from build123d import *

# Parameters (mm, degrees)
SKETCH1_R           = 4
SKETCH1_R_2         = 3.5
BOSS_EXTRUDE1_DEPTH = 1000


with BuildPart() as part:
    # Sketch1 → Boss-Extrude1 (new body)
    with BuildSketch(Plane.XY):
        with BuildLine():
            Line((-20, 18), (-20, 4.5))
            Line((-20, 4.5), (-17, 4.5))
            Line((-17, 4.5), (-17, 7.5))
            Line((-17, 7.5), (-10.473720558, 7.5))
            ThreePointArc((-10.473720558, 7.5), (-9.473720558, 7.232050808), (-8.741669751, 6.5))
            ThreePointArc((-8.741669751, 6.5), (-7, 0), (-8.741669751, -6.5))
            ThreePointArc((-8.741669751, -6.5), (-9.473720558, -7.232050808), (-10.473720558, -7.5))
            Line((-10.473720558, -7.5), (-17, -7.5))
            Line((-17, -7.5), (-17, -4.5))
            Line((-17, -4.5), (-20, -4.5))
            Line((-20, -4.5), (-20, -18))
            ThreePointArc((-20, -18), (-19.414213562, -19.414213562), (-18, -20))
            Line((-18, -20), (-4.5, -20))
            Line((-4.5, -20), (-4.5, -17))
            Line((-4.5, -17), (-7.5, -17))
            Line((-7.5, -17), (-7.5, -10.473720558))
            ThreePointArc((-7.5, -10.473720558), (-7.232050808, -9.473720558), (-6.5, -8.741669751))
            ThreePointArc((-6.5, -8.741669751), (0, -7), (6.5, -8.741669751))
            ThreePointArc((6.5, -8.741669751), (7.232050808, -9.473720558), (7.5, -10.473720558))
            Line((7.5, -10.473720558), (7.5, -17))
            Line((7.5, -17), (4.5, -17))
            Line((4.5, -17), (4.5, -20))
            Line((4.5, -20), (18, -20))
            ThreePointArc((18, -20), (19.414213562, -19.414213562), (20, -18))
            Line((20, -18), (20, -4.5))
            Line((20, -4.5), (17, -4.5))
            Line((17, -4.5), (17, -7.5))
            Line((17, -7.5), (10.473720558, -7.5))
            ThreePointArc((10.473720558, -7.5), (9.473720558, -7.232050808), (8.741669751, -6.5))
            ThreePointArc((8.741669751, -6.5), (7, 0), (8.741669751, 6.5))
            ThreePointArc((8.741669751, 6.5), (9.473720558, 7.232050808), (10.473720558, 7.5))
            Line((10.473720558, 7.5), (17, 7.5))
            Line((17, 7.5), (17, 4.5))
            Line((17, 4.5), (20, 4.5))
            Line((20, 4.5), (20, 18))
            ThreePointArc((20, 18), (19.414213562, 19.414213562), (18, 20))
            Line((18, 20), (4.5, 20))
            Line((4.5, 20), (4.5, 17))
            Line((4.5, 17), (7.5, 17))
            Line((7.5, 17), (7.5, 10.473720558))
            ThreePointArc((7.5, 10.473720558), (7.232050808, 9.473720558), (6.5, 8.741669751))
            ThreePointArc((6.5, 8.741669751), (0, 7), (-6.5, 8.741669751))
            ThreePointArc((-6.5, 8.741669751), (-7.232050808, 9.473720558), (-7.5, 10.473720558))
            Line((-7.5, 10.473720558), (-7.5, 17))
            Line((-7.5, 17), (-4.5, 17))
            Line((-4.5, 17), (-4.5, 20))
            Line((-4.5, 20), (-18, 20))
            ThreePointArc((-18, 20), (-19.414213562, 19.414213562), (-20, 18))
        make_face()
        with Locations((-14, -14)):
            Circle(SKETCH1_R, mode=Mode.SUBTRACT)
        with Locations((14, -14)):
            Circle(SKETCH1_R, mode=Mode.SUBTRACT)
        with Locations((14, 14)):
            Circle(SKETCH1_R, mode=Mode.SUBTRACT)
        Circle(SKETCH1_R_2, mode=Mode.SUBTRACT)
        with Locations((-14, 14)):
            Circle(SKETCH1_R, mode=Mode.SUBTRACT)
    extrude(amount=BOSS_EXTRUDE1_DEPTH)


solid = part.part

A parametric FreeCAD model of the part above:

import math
import FreeCAD as App
import Part
import Sketcher

V = App.Vector

doc = App.newDocument("Part")
body = doc.addObject("PartDesign::Body", "Body")

# Sketch on XY plane
sketch1 = body.newObject("Sketcher::SketchObject", "Sketch")
sketch1.AttachmentSupport = (doc.getObject("XY_Plane"), [""])
sketch1.MapMode = "FlatFace"
sketch1.addGeometry([
    Part.LineSegment(V(-20, 18, 0), V(-20, 4.5, 0)),  # 0
    Part.LineSegment(V(-20, 4.5, 0), V(-17, 4.5, 0)),  # 1
    Part.LineSegment(V(-17, 4.5, 0), V(-17, 7.5, 0)),  # 2
    Part.LineSegment(V(-17, 7.5, 0), V(-10.473721, 7.5, 0)),  # 3
    Part.ArcOfCircle(Part.Circle(V(-10.473721, 5.5, 0), V(0, 0, 1), 2), math.radians(30), math.radians(90)),  # 4
    Part.ArcOfCircle(Part.Circle(V(-20, 0, 0), V(0, 0, 1), 13), math.radians(-30), math.radians(30)),  # 5
    Part.ArcOfCircle(Part.Circle(V(-10.473721, -5.5, 0), V(0, 0, 1), 2), math.radians(-90), math.radians(-30)),  # 6
    Part.LineSegment(V(-10.473721, -7.5, 0), V(-17, -7.5, 0)),  # 7
    Part.LineSegment(V(-17, -7.5, 0), V(-17, -4.5, 0)),  # 8
    Part.LineSegment(V(-17, -4.5, 0), V(-20, -4.5, 0)),  # 9
    Part.LineSegment(V(-20, -4.5, 0), V(-20, -18, 0)),  # 10
    Part.ArcOfCircle(Part.Circle(V(-18, -18, 0), V(0, 0, 1), 2), math.radians(-180), math.radians(-90)),  # 11
    Part.LineSegment(V(-18, -20, 0), V(-4.5, -20, 0)),  # 12
    Part.LineSegment(V(-4.5, -20, 0), V(-4.5, -17, 0)),  # 13
    Part.LineSegment(V(-4.5, -17, 0), V(-7.5, -17, 0)),  # 14
    Part.LineSegment(V(-7.5, -17, 0), V(-7.5, -10.473721, 0)),  # 15
    Part.ArcOfCircle(Part.Circle(V(-5.5, -10.473721, 0), V(0, 0, 1), 2), math.radians(120), math.radians(180)),  # 16
    Part.ArcOfCircle(Part.Circle(V(0, -20, 0), V(0, 0, 1), 13), math.radians(60), math.radians(120)),  # 17
    Part.ArcOfCircle(Part.Circle(V(5.5, -10.473721, 0), V(0, 0, 1), 2), math.radians(0), math.radians(60)),  # 18
    Part.LineSegment(V(7.5, -10.473721, 0), V(7.5, -17, 0)),  # 19
    Part.LineSegment(V(7.5, -17, 0), V(4.5, -17, 0)),  # 20
    Part.LineSegment(V(4.5, -17, 0), V(4.5, -20, 0)),  # 21
    Part.LineSegment(V(4.5, -20, 0), V(18, -20, 0)),  # 22
    Part.ArcOfCircle(Part.Circle(V(18, -18, 0), V(0, 0, 1), 2), math.radians(-90), math.radians(0)),  # 23
    Part.LineSegment(V(20, -18, 0), V(20, -4.5, 0)),  # 24
    Part.LineSegment(V(20, -4.5, 0), V(17, -4.5, 0)),  # 25
    Part.LineSegment(V(17, -4.5, 0), V(17, -7.5, 0)),  # 26
    Part.LineSegment(V(17, -7.5, 0), V(10.473721, -7.5, 0)),  # 27
    Part.ArcOfCircle(Part.Circle(V(10.473721, -5.5, 0), V(0, 0, 1), 2), math.radians(-150), math.radians(-90)),  # 28
    Part.ArcOfCircle(Part.Circle(V(20, 0, 0), V(0, 0, 1), 13), math.radians(150), math.radians(210)),  # 29
    Part.ArcOfCircle(Part.Circle(V(10.473721, 5.5, 0), V(0, 0, 1), 2), math.radians(90), math.radians(150)),  # 30
    Part.LineSegment(V(10.473721, 7.5, 0), V(17, 7.5, 0)),  # 31
    Part.LineSegment(V(17, 7.5, 0), V(17, 4.5, 0)),  # 32
    Part.LineSegment(V(17, 4.5, 0), V(20, 4.5, 0)),  # 33
    Part.LineSegment(V(20, 4.5, 0), V(20, 18, 0)),  # 34
    Part.ArcOfCircle(Part.Circle(V(18, 18, 0), V(0, 0, 1), 2), math.radians(0), math.radians(90)),  # 35
    Part.LineSegment(V(18, 20, 0), V(4.5, 20, 0)),  # 36
    Part.LineSegment(V(4.5, 20, 0), V(4.5, 17, 0)),  # 37
    Part.LineSegment(V(4.5, 17, 0), V(7.5, 17, 0)),  # 38
    Part.LineSegment(V(7.5, 17, 0), V(7.5, 10.473721, 0)),  # 39
    Part.ArcOfCircle(Part.Circle(V(5.5, 10.473721, 0), V(0, 0, 1), 2), math.radians(-60), math.radians(0)),  # 40
    Part.ArcOfCircle(Part.Circle(V(0, 20, 0), V(0, 0, 1), 13), math.radians(-120), math.radians(-60)),  # 41
    Part.ArcOfCircle(Part.Circle(V(-5.5, 10.473721, 0), V(0, 0, 1), 2), math.radians(180), math.radians(240)),  # 42
    Part.LineSegment(V(-7.5, 10.473721, 0), V(-7.5, 17, 0)),  # 43
    Part.LineSegment(V(-7.5, 17, 0), V(-4.5, 17, 0)),  # 44
    Part.LineSegment(V(-4.5, 17, 0), V(-4.5, 20, 0)),  # 45
    Part.LineSegment(V(-4.5, 20, 0), V(-18, 20, 0)),  # 46
    Part.ArcOfCircle(Part.Circle(V(-18, 18, 0), V(0, 0, 1), 2), math.radians(90), math.radians(180)),  # 47
    Part.Circle(V(-14, -14, 0), V(0, 0, 1), 4),  # 48
    Part.Circle(V(14, -14, 0), V(0, 0, 1), 4),  # 49
    Part.Circle(V(-14, 14, 0), V(0, 0, 1), 4),  # 50
    Part.Circle(V(0, 0, 0), V(0, 0, 1), 3.5),  # 51
    Part.Circle(V(14, 14, 0), V(0, 0, 1), 4),  # 52
], False)
sketch1.addConstraint([
    Sketcher.Constraint("Coincident", 0, 2, 1, 1),
    Sketcher.Constraint("Coincident", 1, 2, 2, 1),
    Sketcher.Constraint("Coincident", 2, 2, 3, 1),
    Sketcher.Constraint("Tangent", 3, 2, 4, 2),
    Sketcher.Constraint("Tangent", 4, 1, 5, 2),
    Sketcher.Constraint("Tangent", 5, 1, 6, 2),
    Sketcher.Constraint("Tangent", 6, 1, 7, 1),
    Sketcher.Constraint("Coincident", 7, 2, 8, 1),
    Sketcher.Constraint("Coincident", 8, 2, 9, 1),
    Sketcher.Constraint("Coincident", 9, 2, 10, 1),
    Sketcher.Constraint("Tangent", 10, 2, 11, 1),
    Sketcher.Constraint("Tangent", 11, 2, 12, 1),
    Sketcher.Constraint("Coincident", 12, 2, 13, 1),
    Sketcher.Constraint("Coincident", 13, 2, 14, 1),
    Sketcher.Constraint("Coincident", 14, 2, 15, 1),
    Sketcher.Constraint("Tangent", 15, 2, 16, 2),
    Sketcher.Constraint("Tangent", 16, 1, 17, 2),
    Sketcher.Constraint("Tangent", 17, 1, 18, 2),
    Sketcher.Constraint("Tangent", 18, 1, 19, 1),
    Sketcher.Constraint("Coincident", 19, 2, 20, 1),
    Sketcher.Constraint("Coincident", 20, 2, 21, 1),
    Sketcher.Constraint("Coincident", 21, 2, 22, 1),
    Sketcher.Constraint("Tangent", 22, 2, 23, 1),
    Sketcher.Constraint("Tangent", 23, 2, 24, 1),
    Sketcher.Constraint("Coincident", 24, 2, 25, 1),
    Sketcher.Constraint("Coincident", 25, 2, 26, 1),
    Sketcher.Constraint("Coincident", 26, 2, 27, 1),
    Sketcher.Constraint("Tangent", 27, 2, 28, 2),
    Sketcher.Constraint("Tangent", 28, 1, 29, 2),
    Sketcher.Constraint("Tangent", 29, 1, 30, 2),
    Sketcher.Constraint("Tangent", 30, 1, 31, 1),
    Sketcher.Constraint("Coincident", 31, 2, 32, 1),
    Sketcher.Constraint("Coincident", 32, 2, 33, 1),
    Sketcher.Constraint("Coincident", 33, 2, 34, 1),
    Sketcher.Constraint("Tangent", 34, 2, 35, 1),
    Sketcher.Constraint("Tangent", 35, 2, 36, 1),
    Sketcher.Constraint("Coincident", 36, 2, 37, 1),
    Sketcher.Constraint("Coincident", 37, 2, 38, 1),
    Sketcher.Constraint("Coincident", 38, 2, 39, 1),
    Sketcher.Constraint("Tangent", 39, 2, 40, 2),
    Sketcher.Constraint("Tangent", 40, 1, 41, 2),
    Sketcher.Constraint("Tangent", 41, 1, 42, 2),
    Sketcher.Constraint("Tangent", 42, 1, 43, 1),
    Sketcher.Constraint("Coincident", 43, 2, 44, 1),
    Sketcher.Constraint("Coincident", 44, 2, 45, 1),
    Sketcher.Constraint("Coincident", 45, 2, 46, 1),
    Sketcher.Constraint("Tangent", 46, 2, 47, 1),
    Sketcher.Constraint("Tangent", 47, 2, 0, 1),
    Sketcher.Constraint("Vertical", 0),
    Sketcher.Constraint("Horizontal", 1),
    Sketcher.Constraint("Vertical", 2),
    Sketcher.Constraint("Horizontal", 3),
    Sketcher.Constraint("Horizontal", 7),
    Sketcher.Constraint("Vertical", 8),
    Sketcher.Constraint("Horizontal", 9),
    Sketcher.Constraint("Vertical", 10),
    Sketcher.Constraint("Horizontal", 12),
    Sketcher.Constraint("Vertical", 13),
    Sketcher.Constraint("Horizontal", 14),
    Sketcher.Constraint("Vertical", 15),
    Sketcher.Constraint("Vertical", 19),
    Sketcher.Constraint("Horizontal", 20),
    Sketcher.Constraint("Vertical", 21),
    Sketcher.Constraint("Horizontal", 22),
    Sketcher.Constraint("Vertical", 24),
    Sketcher.Constraint("Horizontal", 25),
    Sketcher.Constraint("Vertical", 26),
    Sketcher.Constraint("Horizontal", 27),
    Sketcher.Constraint("Horizontal", 31),
    Sketcher.Constraint("Vertical", 32),
    Sketcher.Constraint("Horizontal", 33),
    Sketcher.Constraint("Vertical", 34),
    Sketcher.Constraint("Horizontal", 36),
    Sketcher.Constraint("Vertical", 37),
    Sketcher.Constraint("Horizontal", 38),
    Sketcher.Constraint("Vertical", 39),
    Sketcher.Constraint("Vertical", 43),
    Sketcher.Constraint("Horizontal", 44),
    Sketcher.Constraint("Vertical", 45),
    Sketcher.Constraint("Horizontal", 46),
    Sketcher.Constraint("Coincident", 51, 3, -1, 1),
    Sketcher.Constraint("Equal", 4, 6),
    Sketcher.Constraint("Equal", 6, 11),
    Sketcher.Constraint("Equal", 11, 16),
    Sketcher.Constraint("Equal", 5, 17),
    Sketcher.Constraint("Equal", 16, 18),
    Sketcher.Constraint("Equal", 18, 23),
    Sketcher.Constraint("Equal", 23, 28),
    Sketcher.Constraint("Equal", 17, 29),
    Sketcher.Constraint("Equal", 28, 30),
    Sketcher.Constraint("Equal", 30, 35),
    Sketcher.Constraint("Equal", 35, 40),
    Sketcher.Constraint("Equal", 29, 41),
    Sketcher.Constraint("Equal", 40, 42),
    Sketcher.Constraint("Equal", 42, 47),
    Sketcher.Constraint("Equal", 48, 49),
    Sketcher.Constraint("Equal", 49, 50),
    Sketcher.Constraint("Equal", 50, 52),
    Sketcher.Constraint("Symmetric", 4, 3, 28, 3, -1, 1),
    Sketcher.Constraint("Symmetric", 6, 3, 30, 3, -1, 1),
    Sketcher.Constraint("Symmetric", 11, 3, 35, 3, -1, 1),
    Sketcher.Constraint("Symmetric", 16, 3, 40, 3, -1, 1),
    Sketcher.Constraint("Symmetric", 18, 3, 42, 3, -1, 1),
    Sketcher.Constraint("Symmetric", 23, 3, 47, 3, -1, 1),
    Sketcher.Constraint("Symmetric", 49, 3, 50, 3, -1, 1),
    Sketcher.Constraint("Symmetric", 48, 3, 52, 3, -1, 1),
    Sketcher.Constraint("Symmetric", 1, 2, 25, 2, -1, 1),
    Sketcher.Constraint("Symmetric", 8, 2, 32, 2, -1, 1),
    Sketcher.Constraint("Symmetric", 13, 2, 37, 2, -1, 1),
    Sketcher.Constraint("Symmetric", 20, 2, 44, 2, -1, 1),
    Sketcher.Constraint("Symmetric", 16, 3, 18, 3, -2),
    Sketcher.Constraint("Symmetric", 11, 3, 23, 3, -2),
    Sketcher.Constraint("Symmetric", 6, 3, 28, 3, -2),
    Sketcher.Constraint("Symmetric", 48, 3, 49, 3, -2),
    Sketcher.Constraint("Symmetric", 13, 2, 20, 2, -2),
    Sketcher.Constraint("Symmetric", 8, 2, 25, 2, -2),
    Sketcher.Constraint("Horizontal", 17, 3, 11, 2),
    Sketcher.Constraint("Vertical", 5, 3, 0, 2),
    Sketcher.Constraint("Equal", 9, 14),
    Sketcher.Constraint("Equal", 46, 0),
    Sketcher.Constraint("Equal", 44, 2),
    Sketcher.Constraint("Equal", 8, 13),
    Sketcher.Constraint("Equal", 31, 15),
    Sketcher.Constraint("Diameter", 48, 8.0),
    Sketcher.Constraint("Diameter", 51, 7.0),
    Sketcher.Constraint("Radius", 4, 2.0),
    Sketcher.Constraint("Radius", 5, 13.0),
    Sketcher.Constraint("DistanceX", 1, 1, 1, 2, 3.0),
    Sketcher.Constraint("DistanceX", 12, 1, 12, 2, 13.5),
    Sketcher.Constraint("DistanceX", 5, 3, -1, 1, 20.0),
    Sketcher.Constraint("DistanceX", 48, 3, -1, 1, 14.0),
    Sketcher.Constraint("DistanceY", 48, 3, -1, 1, 14.0),
])
pad1 = body.newObject("PartDesign::Pad", "Pad")
pad1.Profile = sketch1
pad1.Length = 1000

doc.recompute()
